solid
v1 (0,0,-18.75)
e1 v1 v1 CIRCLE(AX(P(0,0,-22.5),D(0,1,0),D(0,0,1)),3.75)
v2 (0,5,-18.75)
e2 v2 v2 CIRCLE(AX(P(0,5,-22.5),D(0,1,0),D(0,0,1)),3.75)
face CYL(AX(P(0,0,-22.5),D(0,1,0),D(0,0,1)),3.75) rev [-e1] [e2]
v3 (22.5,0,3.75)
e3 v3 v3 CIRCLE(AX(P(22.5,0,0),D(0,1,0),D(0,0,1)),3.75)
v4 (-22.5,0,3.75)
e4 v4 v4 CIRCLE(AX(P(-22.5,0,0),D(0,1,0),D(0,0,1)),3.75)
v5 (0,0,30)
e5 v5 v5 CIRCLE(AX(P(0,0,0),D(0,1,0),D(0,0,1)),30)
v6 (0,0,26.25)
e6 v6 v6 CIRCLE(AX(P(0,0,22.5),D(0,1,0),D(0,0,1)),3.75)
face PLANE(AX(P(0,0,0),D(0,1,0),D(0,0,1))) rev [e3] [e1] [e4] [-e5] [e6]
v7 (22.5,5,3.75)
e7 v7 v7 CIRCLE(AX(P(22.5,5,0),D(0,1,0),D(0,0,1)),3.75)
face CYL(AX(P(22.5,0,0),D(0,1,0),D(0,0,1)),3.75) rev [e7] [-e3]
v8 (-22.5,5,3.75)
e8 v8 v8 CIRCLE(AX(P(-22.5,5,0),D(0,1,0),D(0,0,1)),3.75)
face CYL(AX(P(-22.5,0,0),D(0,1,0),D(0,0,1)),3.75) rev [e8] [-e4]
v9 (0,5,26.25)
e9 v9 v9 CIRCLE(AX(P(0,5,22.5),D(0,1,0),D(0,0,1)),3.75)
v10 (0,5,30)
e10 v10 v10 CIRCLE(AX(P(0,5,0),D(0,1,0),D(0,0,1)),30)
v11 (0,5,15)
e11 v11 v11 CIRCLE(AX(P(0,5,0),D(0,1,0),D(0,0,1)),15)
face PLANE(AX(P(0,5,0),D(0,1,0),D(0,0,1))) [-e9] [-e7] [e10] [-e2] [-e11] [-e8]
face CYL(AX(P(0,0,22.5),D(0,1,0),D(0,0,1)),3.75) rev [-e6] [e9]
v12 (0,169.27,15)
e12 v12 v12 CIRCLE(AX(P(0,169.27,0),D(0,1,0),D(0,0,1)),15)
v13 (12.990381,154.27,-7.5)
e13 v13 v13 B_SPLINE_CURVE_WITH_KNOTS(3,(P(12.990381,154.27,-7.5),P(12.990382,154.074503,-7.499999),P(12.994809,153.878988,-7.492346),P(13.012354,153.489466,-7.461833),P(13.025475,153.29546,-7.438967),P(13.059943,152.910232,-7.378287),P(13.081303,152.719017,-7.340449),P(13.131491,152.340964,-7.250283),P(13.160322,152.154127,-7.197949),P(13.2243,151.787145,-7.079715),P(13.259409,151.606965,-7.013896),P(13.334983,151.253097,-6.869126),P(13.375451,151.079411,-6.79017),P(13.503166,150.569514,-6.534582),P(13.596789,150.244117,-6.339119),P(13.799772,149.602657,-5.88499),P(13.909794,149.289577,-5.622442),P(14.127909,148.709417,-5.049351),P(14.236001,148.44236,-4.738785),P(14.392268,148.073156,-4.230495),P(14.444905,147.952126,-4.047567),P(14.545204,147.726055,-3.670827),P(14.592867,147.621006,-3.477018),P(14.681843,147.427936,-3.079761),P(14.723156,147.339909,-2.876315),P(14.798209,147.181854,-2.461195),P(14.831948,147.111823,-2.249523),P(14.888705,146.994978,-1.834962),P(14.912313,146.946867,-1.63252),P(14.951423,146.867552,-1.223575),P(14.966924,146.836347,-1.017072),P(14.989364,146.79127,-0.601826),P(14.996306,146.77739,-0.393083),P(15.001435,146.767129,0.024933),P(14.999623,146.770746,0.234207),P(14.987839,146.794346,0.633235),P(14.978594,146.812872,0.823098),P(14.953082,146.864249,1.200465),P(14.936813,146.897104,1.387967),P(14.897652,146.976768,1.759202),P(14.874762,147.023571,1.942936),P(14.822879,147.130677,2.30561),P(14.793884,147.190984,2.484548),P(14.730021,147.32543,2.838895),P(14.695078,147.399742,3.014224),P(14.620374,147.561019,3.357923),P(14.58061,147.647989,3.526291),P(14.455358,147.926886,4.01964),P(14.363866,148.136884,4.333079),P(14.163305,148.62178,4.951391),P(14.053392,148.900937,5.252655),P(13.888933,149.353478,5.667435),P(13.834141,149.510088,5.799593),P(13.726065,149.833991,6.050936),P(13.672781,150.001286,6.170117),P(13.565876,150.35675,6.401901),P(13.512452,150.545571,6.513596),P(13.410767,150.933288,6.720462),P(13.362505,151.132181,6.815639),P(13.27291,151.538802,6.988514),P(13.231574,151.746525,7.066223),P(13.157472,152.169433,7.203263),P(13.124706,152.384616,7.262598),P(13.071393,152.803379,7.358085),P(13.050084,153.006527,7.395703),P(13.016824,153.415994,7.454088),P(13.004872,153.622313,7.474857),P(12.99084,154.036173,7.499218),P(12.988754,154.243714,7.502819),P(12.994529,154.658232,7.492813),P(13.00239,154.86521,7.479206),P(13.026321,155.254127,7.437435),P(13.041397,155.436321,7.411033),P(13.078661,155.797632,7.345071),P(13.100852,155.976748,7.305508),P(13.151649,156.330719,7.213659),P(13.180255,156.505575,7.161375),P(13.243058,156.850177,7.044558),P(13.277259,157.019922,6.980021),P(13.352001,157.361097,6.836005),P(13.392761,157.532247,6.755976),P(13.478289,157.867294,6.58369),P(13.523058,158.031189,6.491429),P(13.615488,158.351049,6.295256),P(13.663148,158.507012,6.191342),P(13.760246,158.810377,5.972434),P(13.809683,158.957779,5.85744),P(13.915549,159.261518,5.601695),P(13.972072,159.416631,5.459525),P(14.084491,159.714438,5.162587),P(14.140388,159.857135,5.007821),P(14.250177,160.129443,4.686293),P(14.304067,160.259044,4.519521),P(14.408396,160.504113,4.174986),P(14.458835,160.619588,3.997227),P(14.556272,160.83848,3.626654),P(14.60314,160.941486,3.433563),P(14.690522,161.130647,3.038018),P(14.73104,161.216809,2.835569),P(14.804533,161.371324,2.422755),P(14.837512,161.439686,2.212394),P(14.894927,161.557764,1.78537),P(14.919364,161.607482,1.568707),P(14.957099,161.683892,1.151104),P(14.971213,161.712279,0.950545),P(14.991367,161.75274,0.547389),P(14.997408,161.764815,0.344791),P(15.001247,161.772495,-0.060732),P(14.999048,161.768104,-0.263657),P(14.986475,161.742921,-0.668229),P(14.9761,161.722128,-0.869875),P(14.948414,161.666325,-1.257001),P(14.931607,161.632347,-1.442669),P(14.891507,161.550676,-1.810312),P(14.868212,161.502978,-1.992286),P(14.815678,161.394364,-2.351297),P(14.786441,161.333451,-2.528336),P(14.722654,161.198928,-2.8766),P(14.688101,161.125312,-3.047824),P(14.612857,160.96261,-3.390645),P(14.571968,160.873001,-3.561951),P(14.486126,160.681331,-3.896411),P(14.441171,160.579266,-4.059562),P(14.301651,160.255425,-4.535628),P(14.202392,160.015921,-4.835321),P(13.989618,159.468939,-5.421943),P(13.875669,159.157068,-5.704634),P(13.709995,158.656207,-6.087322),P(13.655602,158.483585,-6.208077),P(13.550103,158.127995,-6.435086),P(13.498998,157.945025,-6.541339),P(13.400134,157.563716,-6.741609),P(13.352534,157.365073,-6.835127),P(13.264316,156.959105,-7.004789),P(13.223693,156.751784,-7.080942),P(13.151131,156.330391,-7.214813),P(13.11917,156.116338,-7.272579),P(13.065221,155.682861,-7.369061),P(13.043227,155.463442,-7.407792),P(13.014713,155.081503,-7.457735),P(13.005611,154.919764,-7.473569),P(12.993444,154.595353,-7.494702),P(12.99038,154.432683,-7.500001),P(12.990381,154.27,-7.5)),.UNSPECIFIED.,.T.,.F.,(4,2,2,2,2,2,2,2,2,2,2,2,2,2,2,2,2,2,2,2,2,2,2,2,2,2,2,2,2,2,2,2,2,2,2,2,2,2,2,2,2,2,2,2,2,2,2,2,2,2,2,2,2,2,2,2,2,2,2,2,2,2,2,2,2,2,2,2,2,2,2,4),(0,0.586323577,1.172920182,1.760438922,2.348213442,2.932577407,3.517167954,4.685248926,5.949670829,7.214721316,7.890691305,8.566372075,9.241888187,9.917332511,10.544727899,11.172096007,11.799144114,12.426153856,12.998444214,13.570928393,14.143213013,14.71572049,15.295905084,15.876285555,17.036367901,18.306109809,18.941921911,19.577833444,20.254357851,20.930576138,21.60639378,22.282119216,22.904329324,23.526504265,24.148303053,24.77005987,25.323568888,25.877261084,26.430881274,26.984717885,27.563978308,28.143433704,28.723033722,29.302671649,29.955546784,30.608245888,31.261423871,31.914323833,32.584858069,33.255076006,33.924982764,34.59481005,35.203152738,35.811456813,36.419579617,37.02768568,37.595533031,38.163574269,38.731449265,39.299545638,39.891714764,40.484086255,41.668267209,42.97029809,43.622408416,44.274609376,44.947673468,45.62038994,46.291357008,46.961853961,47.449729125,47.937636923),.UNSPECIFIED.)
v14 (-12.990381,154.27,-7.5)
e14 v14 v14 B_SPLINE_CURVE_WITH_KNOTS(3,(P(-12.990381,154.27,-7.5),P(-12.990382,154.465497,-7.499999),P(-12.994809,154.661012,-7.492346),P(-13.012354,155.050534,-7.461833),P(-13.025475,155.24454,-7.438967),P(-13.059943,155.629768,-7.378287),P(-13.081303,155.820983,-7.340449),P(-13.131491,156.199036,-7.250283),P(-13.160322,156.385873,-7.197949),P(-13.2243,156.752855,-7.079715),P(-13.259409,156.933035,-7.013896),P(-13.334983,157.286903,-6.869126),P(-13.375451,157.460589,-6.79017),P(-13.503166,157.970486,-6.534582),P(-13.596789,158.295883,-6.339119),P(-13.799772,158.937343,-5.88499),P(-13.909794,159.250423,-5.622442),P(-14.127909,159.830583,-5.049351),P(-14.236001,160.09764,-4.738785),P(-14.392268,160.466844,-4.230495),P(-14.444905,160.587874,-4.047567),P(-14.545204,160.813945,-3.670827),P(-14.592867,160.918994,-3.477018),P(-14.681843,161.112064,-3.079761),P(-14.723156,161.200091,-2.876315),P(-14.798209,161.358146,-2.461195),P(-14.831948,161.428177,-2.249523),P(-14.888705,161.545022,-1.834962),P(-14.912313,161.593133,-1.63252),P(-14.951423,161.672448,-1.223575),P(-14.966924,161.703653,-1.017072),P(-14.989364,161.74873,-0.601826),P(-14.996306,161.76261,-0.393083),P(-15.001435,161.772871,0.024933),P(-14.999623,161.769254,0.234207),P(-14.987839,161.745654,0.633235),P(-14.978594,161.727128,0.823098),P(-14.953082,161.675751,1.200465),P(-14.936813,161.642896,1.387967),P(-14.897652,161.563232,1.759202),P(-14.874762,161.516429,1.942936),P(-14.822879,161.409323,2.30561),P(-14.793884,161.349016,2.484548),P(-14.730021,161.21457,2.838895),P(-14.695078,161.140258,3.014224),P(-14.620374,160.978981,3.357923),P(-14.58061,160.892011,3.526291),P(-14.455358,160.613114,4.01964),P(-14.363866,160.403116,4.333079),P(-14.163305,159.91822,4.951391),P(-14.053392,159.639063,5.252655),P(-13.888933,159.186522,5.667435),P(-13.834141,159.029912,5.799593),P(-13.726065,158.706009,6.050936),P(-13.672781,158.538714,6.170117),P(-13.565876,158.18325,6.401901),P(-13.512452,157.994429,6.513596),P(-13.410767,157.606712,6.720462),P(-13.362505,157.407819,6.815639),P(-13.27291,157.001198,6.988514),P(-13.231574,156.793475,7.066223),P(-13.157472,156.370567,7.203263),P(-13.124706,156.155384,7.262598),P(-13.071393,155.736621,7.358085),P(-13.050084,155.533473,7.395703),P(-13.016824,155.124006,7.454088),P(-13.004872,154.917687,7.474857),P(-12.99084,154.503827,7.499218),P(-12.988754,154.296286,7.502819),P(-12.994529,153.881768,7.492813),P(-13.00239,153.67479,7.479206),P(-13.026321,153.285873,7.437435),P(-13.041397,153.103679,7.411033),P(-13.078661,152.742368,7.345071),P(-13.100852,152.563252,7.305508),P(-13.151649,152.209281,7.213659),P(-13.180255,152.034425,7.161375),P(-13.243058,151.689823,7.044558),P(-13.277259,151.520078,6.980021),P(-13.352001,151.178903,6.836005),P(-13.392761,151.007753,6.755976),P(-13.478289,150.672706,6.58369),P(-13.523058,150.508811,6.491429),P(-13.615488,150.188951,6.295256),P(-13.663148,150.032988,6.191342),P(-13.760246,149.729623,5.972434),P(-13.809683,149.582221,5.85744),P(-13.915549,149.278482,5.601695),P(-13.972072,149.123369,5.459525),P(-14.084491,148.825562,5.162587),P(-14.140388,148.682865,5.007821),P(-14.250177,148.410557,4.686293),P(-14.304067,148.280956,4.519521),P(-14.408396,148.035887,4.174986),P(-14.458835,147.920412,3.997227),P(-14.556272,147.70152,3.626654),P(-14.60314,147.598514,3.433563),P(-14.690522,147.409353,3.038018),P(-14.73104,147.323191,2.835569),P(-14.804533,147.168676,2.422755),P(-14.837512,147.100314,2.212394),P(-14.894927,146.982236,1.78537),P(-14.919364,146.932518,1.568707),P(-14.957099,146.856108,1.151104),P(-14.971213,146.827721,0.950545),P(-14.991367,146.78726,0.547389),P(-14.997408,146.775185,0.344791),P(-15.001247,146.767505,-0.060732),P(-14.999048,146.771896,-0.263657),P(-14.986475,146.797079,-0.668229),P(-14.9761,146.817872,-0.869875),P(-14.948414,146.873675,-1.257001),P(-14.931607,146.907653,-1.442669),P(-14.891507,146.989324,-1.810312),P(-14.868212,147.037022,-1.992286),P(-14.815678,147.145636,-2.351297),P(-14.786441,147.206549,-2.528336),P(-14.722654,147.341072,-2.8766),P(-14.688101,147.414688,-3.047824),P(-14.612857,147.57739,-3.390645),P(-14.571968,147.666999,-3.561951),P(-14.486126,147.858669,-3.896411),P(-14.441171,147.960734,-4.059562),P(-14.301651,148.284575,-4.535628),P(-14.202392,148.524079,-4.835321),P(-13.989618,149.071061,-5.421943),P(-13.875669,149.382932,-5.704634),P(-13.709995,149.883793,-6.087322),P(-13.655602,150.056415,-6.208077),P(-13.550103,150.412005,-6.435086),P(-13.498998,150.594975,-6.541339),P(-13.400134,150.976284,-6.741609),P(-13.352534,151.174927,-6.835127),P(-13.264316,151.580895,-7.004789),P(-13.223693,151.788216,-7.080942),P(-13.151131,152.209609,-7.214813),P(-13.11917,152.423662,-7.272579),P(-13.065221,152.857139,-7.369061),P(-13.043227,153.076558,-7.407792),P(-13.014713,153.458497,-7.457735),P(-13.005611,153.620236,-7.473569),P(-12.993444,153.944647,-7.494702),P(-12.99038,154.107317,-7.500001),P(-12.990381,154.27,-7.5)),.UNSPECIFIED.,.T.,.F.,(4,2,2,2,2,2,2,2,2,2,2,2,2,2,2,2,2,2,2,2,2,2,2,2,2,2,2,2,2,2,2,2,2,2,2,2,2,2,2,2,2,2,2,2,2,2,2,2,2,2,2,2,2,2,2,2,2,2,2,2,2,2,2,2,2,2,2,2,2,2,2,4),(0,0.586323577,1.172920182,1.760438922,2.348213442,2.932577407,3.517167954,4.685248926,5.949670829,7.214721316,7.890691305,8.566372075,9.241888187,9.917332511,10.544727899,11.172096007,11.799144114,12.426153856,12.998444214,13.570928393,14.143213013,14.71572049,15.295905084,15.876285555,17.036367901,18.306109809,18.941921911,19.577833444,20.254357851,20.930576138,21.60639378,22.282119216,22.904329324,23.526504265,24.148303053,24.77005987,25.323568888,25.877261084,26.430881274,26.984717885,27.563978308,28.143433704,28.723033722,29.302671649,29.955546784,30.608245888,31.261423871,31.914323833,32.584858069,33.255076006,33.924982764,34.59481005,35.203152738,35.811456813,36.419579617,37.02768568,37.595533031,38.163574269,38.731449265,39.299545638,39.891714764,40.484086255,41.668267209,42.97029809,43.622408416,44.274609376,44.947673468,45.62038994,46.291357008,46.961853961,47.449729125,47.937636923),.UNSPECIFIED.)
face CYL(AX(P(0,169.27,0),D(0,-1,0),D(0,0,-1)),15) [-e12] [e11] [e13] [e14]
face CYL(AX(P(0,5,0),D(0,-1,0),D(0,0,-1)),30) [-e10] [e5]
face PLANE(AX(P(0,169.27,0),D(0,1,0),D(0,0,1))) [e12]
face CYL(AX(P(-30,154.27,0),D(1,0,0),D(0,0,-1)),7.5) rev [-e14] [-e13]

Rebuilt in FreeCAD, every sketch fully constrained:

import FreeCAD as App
import Part
import Sketcher
from FreeCAD import Vector
Q = App.Units.Quantity

doc = App.newDocument("Part")
body = doc.addObject("PartDesign::Body", "Body")

# Sketch on XZ plane
sketch1 = doc.addObject("Sketcher::SketchObject", "Sketch")
body.addObject(sketch1)
sketch1.AttachmentSupport = (doc.XZ_Plane, [""])
sketch1.MapMode = "FlatFace"
sketch1.addGeometry(Part.Circle(Vector(0, 0, 0), Vector(0, 0, 1), 30), False)
sketch1.addConstraint(Sketcher.Constraint("Coincident", 0, 3, -1, 1))
sketch1.addConstraint(Sketcher.Constraint("Diameter", 0, Q("60 mm")))
pad1 = doc.addObject("PartDesign::Pad", "Pad")
body.addObject(pad1)
pad1.Profile = sketch1
pad1.Length = 5
pad1.Reversed = True

# Sketch on XZ plane
sketch2 = doc.addObject("Sketcher::SketchObject", "Sketch001")
body.addObject(sketch2)
sketch2.AttachmentSupport = (doc.XZ_Plane, [""])
sketch2.MapMode = "FlatFace"
sketch2.AttachmentOffset = App.Placement(Vector(0, 0, -5), App.Rotation())
sketch2.addGeometry(Part.Circle(Vector(0, -22.5, 0), Vector(0, 0, 1), 3.8), False)
sketch2.addGeometry(Part.Circle(Vector(22.5, 0, 0), Vector(0, 0, 1), 3.8), False)
sketch2.addGeometry(Part.Circle(Vector(0, 22.5, 0), Vector(0, 0, 1), 3.8), False)
sketch2.addGeometry(Part.Circle(Vector(-22.5, 0, 0), Vector(0, 0, 1), 3.8), False)
sketch2.addConstraint(Sketcher.Constraint("Equal", 0, 1))
sketch2.addConstraint(Sketcher.Constraint("Equal", 1, 2))
sketch2.addConstraint(Sketcher.Constraint("Equal", 2, 3))
sketch2.addConstraint(Sketcher.Constraint("Symmetric", 0, 3, 2, 3, -1, 1))
sketch2.addConstraint(Sketcher.Constraint("Symmetric", 1, 3, 3, 3, -1, 1))
sketch2.addConstraint(Sketcher.Constraint("PointOnObject", 0, 3, -2))
sketch2.addConstraint(Sketcher.Constraint("PointOnObject", 1, 3, -1))
sketch2.addConstraint(Sketcher.Constraint("Diameter", 0, Q("7.5 mm")))
sketch2.addConstraint(Sketcher.Constraint("DistanceY", 0, 3, 2, 3, Q("45 mm")))
sketch2.addConstraint(Sketcher.Constraint("DistanceX", 3, 3, 1, 3, Q("45 mm")))
pocket1 = doc.addObject("PartDesign::Pocket", "Pocket")
body.addObject(pocket1)
pocket1.Profile = sketch2
pocket1.Length = 5
pocket1.Reversed = True

# Sketch on XZ plane
sketch3 = doc.addObject("Sketcher::SketchObject", "Sketch002")
body.addObject(sketch3)
sketch3.AttachmentSupport = (doc.XZ_Plane, [""])
sketch3.MapMode = "FlatFace"
sketch3.AttachmentOffset = App.Placement(Vector(0, 0, -5), App.Rotation())
sketch3.addGeometry(Part.Circle(Vector(0, 0, 0), Vector(0, 0, 1), 15), False)
sketch3.addConstraint(Sketcher.Constraint("Coincident", 0, 3, -1, 1))
sketch3.addConstraint(Sketcher.Constraint("Diameter", 0, Q("30 mm")))
pad2 = doc.addObject("PartDesign::Pad", "Pad001")
body.addObject(pad2)
pad2.Profile = sketch3
pad2.Length = 164.27
pad2.Reversed = True

# Sketch on YZ plane
sketch4 = doc.addObject("Sketcher::SketchObject", "Sketch003")
body.addObject(sketch4)
sketch4.AttachmentSupport = (doc.YZ_Plane, [""])
sketch4.MapMode = "FlatFace"
sketch4.AttachmentOffset = App.Placement(Vector(0, 0, 15), App.Rotation())
sketch4.addGeometry(Part.Circle(Vector(154, 0, 0), Vector(0, 0, 1), 8), False)
sketch4.addConstraint(Sketcher.Constraint("PointOnObject", 0, 3, -1))
sketch4.addConstraint(Sketcher.Constraint("Diameter", 0, Q("15 mm")))
sketch4.addConstraint(Sketcher.Constraint("DistanceX", -1, 1, 0, 3, Q("154.27 mm")))
pocket2 = doc.addObject("PartDesign::Pocket", "Pocket001")
body.addObject(pocket2)
pocket2.Profile = sketch4
pocket2.Type = "ThroughAll"

doc.recompute()
